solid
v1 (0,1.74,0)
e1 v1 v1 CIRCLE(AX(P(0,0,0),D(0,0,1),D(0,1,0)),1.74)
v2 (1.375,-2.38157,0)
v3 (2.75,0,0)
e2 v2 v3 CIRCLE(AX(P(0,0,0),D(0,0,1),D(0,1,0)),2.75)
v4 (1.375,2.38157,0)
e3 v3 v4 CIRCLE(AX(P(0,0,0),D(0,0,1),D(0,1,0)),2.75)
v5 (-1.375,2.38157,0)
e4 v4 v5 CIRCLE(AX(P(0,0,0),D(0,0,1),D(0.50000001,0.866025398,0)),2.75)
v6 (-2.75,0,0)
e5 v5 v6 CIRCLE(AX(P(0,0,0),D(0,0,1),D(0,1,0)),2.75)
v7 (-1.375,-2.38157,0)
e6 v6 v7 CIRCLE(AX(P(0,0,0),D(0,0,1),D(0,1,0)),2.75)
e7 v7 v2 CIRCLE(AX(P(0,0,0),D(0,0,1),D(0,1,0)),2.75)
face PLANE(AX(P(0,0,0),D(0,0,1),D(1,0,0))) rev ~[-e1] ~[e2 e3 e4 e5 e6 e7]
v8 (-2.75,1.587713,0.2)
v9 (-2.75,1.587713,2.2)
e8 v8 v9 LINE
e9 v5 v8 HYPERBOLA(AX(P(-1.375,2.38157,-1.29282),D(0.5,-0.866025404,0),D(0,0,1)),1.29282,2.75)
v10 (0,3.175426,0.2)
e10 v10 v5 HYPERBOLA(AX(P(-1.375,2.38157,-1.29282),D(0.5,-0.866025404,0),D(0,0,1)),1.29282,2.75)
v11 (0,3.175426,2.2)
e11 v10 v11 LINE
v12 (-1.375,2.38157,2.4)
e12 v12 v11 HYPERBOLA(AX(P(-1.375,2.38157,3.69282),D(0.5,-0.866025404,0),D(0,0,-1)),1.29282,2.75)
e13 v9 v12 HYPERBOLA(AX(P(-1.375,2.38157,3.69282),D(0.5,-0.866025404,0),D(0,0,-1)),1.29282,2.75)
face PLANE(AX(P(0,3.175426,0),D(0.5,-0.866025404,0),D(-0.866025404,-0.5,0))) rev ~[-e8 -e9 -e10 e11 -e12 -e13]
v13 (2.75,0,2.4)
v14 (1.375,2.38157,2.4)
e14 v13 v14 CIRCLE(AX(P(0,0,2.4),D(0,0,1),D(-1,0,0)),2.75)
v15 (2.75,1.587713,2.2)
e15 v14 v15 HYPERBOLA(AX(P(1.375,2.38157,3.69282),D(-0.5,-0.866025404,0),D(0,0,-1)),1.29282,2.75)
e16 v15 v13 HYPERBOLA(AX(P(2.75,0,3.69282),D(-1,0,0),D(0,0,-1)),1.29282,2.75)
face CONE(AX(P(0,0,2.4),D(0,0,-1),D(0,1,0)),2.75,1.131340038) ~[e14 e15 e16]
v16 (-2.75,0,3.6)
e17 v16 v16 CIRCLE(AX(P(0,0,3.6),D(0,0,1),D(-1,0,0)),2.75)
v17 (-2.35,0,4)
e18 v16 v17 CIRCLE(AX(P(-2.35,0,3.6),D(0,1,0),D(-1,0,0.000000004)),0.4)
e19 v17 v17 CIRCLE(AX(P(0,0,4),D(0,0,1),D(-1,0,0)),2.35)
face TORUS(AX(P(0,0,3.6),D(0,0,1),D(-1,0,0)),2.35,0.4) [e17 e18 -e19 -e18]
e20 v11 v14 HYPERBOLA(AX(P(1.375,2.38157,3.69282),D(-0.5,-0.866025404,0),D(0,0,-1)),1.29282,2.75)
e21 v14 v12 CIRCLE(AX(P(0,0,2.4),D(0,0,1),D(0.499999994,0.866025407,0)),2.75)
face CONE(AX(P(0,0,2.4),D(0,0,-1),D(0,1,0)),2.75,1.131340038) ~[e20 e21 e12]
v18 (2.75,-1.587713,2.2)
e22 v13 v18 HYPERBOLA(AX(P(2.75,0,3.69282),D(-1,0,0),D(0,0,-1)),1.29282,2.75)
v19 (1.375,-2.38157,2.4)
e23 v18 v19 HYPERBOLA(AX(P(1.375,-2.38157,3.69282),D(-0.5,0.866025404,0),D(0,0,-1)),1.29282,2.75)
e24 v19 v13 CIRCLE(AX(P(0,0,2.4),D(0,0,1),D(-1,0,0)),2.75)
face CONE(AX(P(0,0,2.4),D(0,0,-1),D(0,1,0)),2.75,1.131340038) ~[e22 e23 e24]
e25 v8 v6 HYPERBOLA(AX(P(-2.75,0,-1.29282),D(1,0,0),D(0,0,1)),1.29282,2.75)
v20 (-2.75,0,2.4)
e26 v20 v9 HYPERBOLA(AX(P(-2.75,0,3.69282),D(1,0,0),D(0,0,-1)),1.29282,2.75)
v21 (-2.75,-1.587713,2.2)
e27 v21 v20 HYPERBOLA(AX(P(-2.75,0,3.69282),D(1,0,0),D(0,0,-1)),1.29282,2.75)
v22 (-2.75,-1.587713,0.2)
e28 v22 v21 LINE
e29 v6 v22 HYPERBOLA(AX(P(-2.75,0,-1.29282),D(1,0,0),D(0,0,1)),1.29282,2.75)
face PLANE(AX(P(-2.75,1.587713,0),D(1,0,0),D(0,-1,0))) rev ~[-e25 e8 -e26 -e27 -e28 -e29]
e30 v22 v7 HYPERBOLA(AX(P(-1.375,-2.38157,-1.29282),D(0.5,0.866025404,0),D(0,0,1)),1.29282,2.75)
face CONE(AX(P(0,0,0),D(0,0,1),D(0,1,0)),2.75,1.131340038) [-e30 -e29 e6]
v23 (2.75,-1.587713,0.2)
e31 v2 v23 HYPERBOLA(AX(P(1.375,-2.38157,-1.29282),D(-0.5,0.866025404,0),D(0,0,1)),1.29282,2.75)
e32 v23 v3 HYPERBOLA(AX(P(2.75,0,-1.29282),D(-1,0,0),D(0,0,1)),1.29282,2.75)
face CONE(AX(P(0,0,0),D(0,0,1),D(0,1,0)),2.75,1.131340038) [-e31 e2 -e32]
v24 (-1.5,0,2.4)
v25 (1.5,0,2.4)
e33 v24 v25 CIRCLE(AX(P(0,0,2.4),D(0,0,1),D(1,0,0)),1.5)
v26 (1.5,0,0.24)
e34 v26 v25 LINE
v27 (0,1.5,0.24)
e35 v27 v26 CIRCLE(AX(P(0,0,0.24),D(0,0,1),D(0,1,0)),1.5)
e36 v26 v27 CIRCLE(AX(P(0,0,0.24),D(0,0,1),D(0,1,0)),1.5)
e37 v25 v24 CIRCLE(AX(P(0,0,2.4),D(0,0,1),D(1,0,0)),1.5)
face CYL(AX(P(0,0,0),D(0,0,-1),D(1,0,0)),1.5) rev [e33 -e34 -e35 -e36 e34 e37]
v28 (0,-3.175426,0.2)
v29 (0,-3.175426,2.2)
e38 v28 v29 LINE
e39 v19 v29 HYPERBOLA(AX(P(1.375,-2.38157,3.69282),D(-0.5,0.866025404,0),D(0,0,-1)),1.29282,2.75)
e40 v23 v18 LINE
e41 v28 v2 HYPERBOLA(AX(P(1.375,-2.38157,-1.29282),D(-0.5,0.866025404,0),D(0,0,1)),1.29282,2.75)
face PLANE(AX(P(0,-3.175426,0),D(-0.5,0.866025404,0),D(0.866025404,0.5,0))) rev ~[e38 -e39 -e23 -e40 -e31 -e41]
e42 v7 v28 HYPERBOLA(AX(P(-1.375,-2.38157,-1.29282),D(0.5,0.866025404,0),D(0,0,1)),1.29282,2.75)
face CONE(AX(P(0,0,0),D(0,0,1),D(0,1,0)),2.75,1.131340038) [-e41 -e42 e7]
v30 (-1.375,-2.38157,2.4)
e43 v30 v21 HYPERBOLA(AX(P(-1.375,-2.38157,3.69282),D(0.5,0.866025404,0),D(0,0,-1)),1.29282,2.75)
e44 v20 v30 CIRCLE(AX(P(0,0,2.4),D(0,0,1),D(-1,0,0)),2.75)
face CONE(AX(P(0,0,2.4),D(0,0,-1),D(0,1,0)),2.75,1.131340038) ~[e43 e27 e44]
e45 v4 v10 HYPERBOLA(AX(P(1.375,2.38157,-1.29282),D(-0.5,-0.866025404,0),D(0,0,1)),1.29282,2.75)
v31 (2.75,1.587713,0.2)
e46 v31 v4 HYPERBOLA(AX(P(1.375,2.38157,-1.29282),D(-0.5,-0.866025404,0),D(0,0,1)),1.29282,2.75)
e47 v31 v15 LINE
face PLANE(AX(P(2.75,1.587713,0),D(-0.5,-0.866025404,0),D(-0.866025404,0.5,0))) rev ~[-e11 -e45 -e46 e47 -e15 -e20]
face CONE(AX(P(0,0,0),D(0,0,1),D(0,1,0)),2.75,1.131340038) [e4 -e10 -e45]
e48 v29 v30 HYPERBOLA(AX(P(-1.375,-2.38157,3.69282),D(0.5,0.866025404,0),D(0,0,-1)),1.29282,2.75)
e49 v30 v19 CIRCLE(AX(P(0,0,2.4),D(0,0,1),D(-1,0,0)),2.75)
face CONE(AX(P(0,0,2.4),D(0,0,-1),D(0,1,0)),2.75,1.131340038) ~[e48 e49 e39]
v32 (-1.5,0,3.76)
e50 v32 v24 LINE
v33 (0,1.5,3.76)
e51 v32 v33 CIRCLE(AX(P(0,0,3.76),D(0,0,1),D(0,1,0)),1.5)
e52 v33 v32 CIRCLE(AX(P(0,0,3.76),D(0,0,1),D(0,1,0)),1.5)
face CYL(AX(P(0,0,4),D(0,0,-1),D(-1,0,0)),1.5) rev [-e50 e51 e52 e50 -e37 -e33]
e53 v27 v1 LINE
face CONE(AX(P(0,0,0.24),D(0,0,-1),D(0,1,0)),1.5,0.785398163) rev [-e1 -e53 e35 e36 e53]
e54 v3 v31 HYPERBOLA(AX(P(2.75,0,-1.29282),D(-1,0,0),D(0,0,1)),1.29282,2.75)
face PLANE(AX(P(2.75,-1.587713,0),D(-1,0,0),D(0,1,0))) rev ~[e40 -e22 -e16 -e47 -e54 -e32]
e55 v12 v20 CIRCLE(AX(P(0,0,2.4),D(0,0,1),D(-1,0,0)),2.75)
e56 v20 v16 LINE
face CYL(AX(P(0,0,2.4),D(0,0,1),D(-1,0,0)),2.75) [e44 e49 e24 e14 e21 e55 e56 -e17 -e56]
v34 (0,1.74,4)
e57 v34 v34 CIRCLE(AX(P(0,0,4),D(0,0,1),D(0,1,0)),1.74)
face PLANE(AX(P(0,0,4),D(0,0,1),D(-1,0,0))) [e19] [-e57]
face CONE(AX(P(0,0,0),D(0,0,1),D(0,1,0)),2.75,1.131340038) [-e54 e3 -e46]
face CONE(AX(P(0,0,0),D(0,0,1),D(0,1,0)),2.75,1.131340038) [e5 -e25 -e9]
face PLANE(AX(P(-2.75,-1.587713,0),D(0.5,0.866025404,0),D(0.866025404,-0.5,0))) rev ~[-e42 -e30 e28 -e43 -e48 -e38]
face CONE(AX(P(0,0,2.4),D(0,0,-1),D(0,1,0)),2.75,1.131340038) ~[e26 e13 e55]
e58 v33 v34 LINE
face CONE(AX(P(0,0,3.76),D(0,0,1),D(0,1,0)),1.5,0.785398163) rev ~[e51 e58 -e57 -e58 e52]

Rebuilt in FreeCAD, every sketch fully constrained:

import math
import FreeCAD as App
import Part
import Sketcher
from FreeCAD import Vector
Q = App.Units.Quantity


def add_polygon(sketch, points):
    """Adds a closed chain of lines whose ends are joined by coincident constraints."""
    first, n = sketch.GeometryCount, len(points)
    for a, b in zip(points, points[1:] + points[:1]):
        sketch.addGeometry(Part.LineSegment(App.Vector(*a, 0), App.Vector(*b, 0)), False)
    for i in range(n):
        sketch.addConstraint(Sketcher.Constraint("Coincident", first + i, 2, first + (i + 1) % n, 1))

doc = App.newDocument("Part")
body = doc.addObject("PartDesign::Body", "Body")

# Sketch on XY plane
sketch1 = doc.addObject("Sketcher::SketchObject", "Sketch")
body.addObject(sketch1)
sketch1.AttachmentSupport = (doc.XY_Plane, [""])
sketch1.MapMode = "FlatFace"
add_polygon(sketch1, [(0, -3.2), (2.8, -1.6), (2.8, 1.6), (0, 3.2), (-2.8, 1.6), (-2.8, -1.6)])  # lines 0-5
sketch1.addGeometry(Part.Circle(Vector(0, 0, 0), Vector(0, 0, 1), 1.5), False)  # 6
sketch1.addConstraint([
    Sketcher.Constraint("Vertical", 1),
    Sketcher.Constraint("Vertical", 4),
    Sketcher.Constraint("Coincident", 6, 3, -1, 1),
    Sketcher.Constraint("Symmetric", 0, 2, 3, 2, -1, 1),
    Sketcher.Constraint("Symmetric", 2, 2, 5, 2, -1, 1),
    Sketcher.Constraint("PointOnObject", 2, 2, -2),
    Sketcher.Constraint("Parallel", 2, 5),
    Sketcher.Constraint("Horizontal", 1, 2, 3, 2),
    Sketcher.Constraint("Diameter", 6, 3.0),
    Sketcher.Constraint("Angle", 0, Q("30 deg")),
    Sketcher.Constraint("DistanceX", 3, 2, 1, 2, 5.5),
    Sketcher.Constraint("DistanceY", 1, 1, 1, 2, 3.175426),
])
pad1 = doc.addObject("PartDesign::Pad", "Pad")
body.addObject(pad1)
pad1.Profile = sketch1
pad1.Length = 2.4

# Sketch on XZ plane
sketch2 = doc.addObject("Sketcher::SketchObject", "Sketch001")
body.addObject(sketch2)
sketch2.AttachmentSupport = (doc.XZ_Plane, [""])
sketch2.MapMode = "FlatFace"
sketch2.addGeometry([
    Part.LineSegment(Vector(-2.75, 2.4, 0), Vector(-2.75, 3.6, 0)),  # 0
    Part.ArcOfCircle(Part.Circle(Vector(-2.35, 3.6, 0), Vector(0, 0, 1), 0.4), math.radians(90), math.radians(180)),  # 1
    Part.LineSegment(Vector(-2.35, 4, 0), Vector(-1.5, 4, 0)),  # 2
    Part.LineSegment(Vector(-1.5, 4, 0), Vector(-1.5, 2.4, 0)),  # 3
    Part.LineSegment(Vector(-1.5, 2.4, 0), Vector(-2.75, 2.4, 0)),  # 4
], False)
sketch2.addConstraint([
    Sketcher.Constraint("Tangent", 0, 2, 1, 2),
    Sketcher.Constraint("Tangent", 1, 1, 2, 1),
    Sketcher.Constraint("Coincident", 2, 2, 3, 1),
    Sketcher.Constraint("Coincident", 3, 2, 4, 1),
    Sketcher.Constraint("Coincident", 4, 2, 0, 1),
    Sketcher.Constraint("Vertical", 0),
    Sketcher.Constraint("Horizontal", 2),
    Sketcher.Constraint("Vertical", 3),
    Sketcher.Constraint("Horizontal", 4),
    Sketcher.Constraint("Radius", 1, 0.4),
    Sketcher.Constraint("DistanceY", 0, 1, 0, 2, 1.2),
    Sketcher.Constraint("DistanceY", -1, 1, 1, 1, 4.0),
    Sketcher.Constraint("DistanceX", 2, 1, 2, 2, 0.85),
    Sketcher.Constraint("DistanceX", 2, 2, -1, 1, 1.5),
])
revolution = doc.addObject("PartDesign::Revolution", "Revolution")
body.addObject(revolution)
revolution.Profile = sketch2
revolution.ReferenceAxis = (sketch2, ["V_Axis"])
revolution.Angle = 360

# Sketch on YZ plane
sketch3 = doc.addObject("Sketcher::SketchObject", "Sketch002")
body.addObject(sketch3)
sketch3.AttachmentSupport = (doc.YZ_Plane, [""])
sketch3.MapMode = "FlatFace"
add_polygon(sketch3, [(3.18, 2.4), (2.75, 2.4), (3.18, 2.2)])  # lines 0-2
add_polygon(sketch3, [(3.18, 0), (3.18, 0.2), (2.75, 0)])  # lines 3-5
add_polygon(sketch3, [(1.5, 4), (1.5, 3.76), (1.74, 4)])  # lines 6-8
add_polygon(sketch3, [(1.5, 0.24), (1.5, 0), (1.74, 0)])  # lines 9-11
sketch3.addConstraint([
    Sketcher.Constraint("Horizontal", 0),
    Sketcher.Constraint("Vertical", 2),
    Sketcher.Constraint("Vertical", 3),
    Sketcher.Constraint("Horizontal", 5),
    Sketcher.Constraint("Vertical", 6),
    Sketcher.Constraint("Horizontal", 8),
    Sketcher.Constraint("Vertical", 9),
    Sketcher.Constraint("Horizontal", 10),
    Sketcher.Constraint("PointOnObject", 4, 2, -1),
    Sketcher.Constraint("PointOnObject", 9, 2, -1),
    Sketcher.Constraint("Perpendicular", 7, 11),
    Sketcher.Constraint("Vertical", 2, 2, 3, 2),
    Sketcher.Constraint("Vertical", 0, 2, 4, 2),
    Sketcher.Constraint("Vertical", 8, 2, 9, 2),
    Sketcher.Constraint("Vertical", 7, 2, 10, 2),
    Sketcher.Constraint("Equal", 2, 3),
    Sketcher.Constraint("Equal", 10, 6),
    Sketcher.Constraint("DistanceY", 2, 1, 2, 2, 0.2),
    Sketcher.Constraint("DistanceY", -1, 1, 7, 2, 4.0),
    Sketcher.Constraint("DistanceY", 3, 2, 1, 2, 2.0),
    Sketcher.Constraint("DistanceX", 8, 2, 8, 1, 0.24),
    Sketcher.Constraint("DistanceX", -1, 1, 6, 2, 1.5),
    Sketcher.Constraint("DistanceX", -1, 1, 0, 2, 2.75),
    Sketcher.Constraint("DistanceX", 0, 2, 0, 1, 0.425426),
])
groove = doc.addObject("PartDesign::Groove", "Groove")
body.addObject(groove)
groove.Profile = sketch3
groove.ReferenceAxis = (sketch3, ["V_Axis"])
groove.Angle = 360

doc.recompute()
